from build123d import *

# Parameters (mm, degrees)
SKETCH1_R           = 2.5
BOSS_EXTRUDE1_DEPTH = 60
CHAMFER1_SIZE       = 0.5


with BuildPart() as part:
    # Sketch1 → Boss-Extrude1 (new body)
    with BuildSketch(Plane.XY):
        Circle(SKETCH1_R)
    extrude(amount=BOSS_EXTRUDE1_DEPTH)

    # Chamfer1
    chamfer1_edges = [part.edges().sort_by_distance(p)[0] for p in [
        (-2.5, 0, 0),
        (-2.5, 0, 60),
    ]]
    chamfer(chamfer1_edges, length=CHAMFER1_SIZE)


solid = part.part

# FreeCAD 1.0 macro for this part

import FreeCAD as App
import Part
import Sketcher

V = App.Vector
Q = App.Units.Quantity


def edges_at(feature, points):
    """Names of the edges that pass closest to the given points."""
    edges = feature.Shape.Edges
    near = lambda p: min(range(len(edges)), key=lambda i: edges[i].distToShape(Part.Vertex(*p))[0])
    return sorted({f"Edge{near(p) + 1}" for p in points})

doc = App.newDocument("Part")
body = doc.addObject("PartDesign::Body", "Body")

sketch1 = body.newObject("Sketcher::SketchObject", "Sketch")
sketch1.AttachmentSupport = (doc.getObject("XY_Plane"), [""])
sketch1.MapMode = "FlatFace"
sketch1.addGeometry(Part.Circle(V(0, 0, 0), V(0, 0, 1), 2.5), False)
sketch1.addConstraint([
    Sketcher.Constraint("Coincident", 0, 3, -1, 1),
    Sketcher.Constraint("Diameter", 0, Q("5 mm")),
])
pad1 = body.newObject("PartDesign::Pad", "Pad")
pad1.Profile = sketch1
pad1.Length = 60
doc.recompute()

chamfer = body.newObject("PartDesign::Chamfer", "Chamfer")
chamfer.Base = (pad1, edges_at(pad1, [(-2.5, 0, 0), (-2.5, 0, 60)]))
chamfer.Size = 0.5

doc.recompute()
